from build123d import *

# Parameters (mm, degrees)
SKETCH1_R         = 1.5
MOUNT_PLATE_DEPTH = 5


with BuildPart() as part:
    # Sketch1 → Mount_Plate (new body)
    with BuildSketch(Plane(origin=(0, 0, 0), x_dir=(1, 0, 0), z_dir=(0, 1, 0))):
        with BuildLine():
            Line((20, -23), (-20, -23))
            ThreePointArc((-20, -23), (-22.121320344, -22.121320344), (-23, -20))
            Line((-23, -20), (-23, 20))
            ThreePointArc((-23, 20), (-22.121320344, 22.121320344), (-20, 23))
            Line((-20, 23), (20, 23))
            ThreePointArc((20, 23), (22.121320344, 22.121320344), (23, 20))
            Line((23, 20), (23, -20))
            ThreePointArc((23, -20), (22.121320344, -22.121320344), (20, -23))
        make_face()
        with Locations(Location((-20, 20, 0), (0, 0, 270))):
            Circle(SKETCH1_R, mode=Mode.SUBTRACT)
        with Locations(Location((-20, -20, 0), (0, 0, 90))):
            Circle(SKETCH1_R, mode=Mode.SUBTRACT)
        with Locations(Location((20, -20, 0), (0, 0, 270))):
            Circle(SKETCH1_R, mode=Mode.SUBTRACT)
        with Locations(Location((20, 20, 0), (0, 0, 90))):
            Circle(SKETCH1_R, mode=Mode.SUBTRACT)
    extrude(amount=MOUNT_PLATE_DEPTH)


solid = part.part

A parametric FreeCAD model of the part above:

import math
import FreeCAD as App
import Part
import Sketcher

V = App.Vector
Q = App.Units.Quantity

doc = App.newDocument("Part")
body = doc.addObject("PartDesign::Body", "Body")

sketch1 = doc.addObject("Sketcher::SketchObject", "Sketch")
body.addObject(sketch1)
sketch1.AttachmentSupport = (doc.XZ_Plane, [""])
sketch1.MapMode = "FlatFace"
sketch1.addGeometry(Part.LineSegment(V(-20, 23, 0), V(20, 23, 0)), False)
sketch1.addGeometry(Part.ArcOfCircle(Part.Circle(V(20, 20, 0), V(0, 0, 1), 3), math.radians(0), math.radians(90)), False)
sketch1.addGeometry(Part.LineSegment(V(23, 20, 0), V(23, -20, 0)), False)
sketch1.addGeometry(Part.ArcOfCircle(Part.Circle(V(20, -20, 0), V(0, 0, 1), 3), math.radians(-90), math.radians(0)), False)
sketch1.addGeometry(Part.LineSegment(V(20, -23, 0), V(-20, -23, 0)), False)
sketch1.addGeometry(Part.ArcOfCircle(Part.Circle(V(-20, -20, 0), V(0, 0, 1), 3), math.radians(180), math.radians(270)), False)
sketch1.addGeometry(Part.LineSegment(V(-23, -20, 0), V(-23, 20, 0)), False)
sketch1.addGeometry(Part.ArcOfCircle(Part.Circle(V(-20, 20, 0), V(0, 0, 1), 3), math.radians(90), math.radians(180)), False)
sketch1.addGeometry(Part.Circle(V(20, 20, 0), V(0, 0, 1), 1.5), False)
sketch1.addGeometry(Part.Circle(V(-20, 20, 0), V(0, 0, 1), 1.5), False)
sketch1.addGeometry(Part.Circle(V(20, -20, 0), V(0, 0, 1), 1.5), False)
sketch1.addGeometry(Part.Circle(V(-20, -20, 0), V(0, 0, 1), 1.5), False)
sketch1.addConstraint(Sketcher.Constraint("Tangent", 0, 2, 1, 2))
sketch1.addConstraint(Sketcher.Constraint("Tangent", 1, 1, 2, 1))
sketch1.addConstraint(Sketcher.Constraint("Tangent", 2, 2, 3, 2))
sketch1.addConstraint(Sketcher.Constraint("Tangent", 3, 1, 4, 1))
sketch1.addConstraint(Sketcher.Constraint("Tangent", 4, 2, 5, 2))
sketch1.addConstraint(Sketcher.Constraint("Tangent", 5, 1, 6, 1))
sketch1.addConstraint(Sketcher.Constraint("Tangent", 6, 2, 7, 2))
sketch1.addConstraint(Sketcher.Constraint("Tangent", 7, 1, 0, 1))
sketch1.addConstraint(Sketcher.Constraint("Horizontal", 0))
sketch1.addConstraint(Sketcher.Constraint("Vertical", 2))
sketch1.addConstraint(Sketcher.Constraint("Horizontal", 4))
sketch1.addConstraint(Sketcher.Constraint("Vertical", 6))
sketch1.addConstraint(Sketcher.Constraint("Coincident", 8, 3, 1, 3))
sketch1.addConstraint(Sketcher.Constraint("Coincident", 9, 3, 7, 3))
sketch1.addConstraint(Sketcher.Constraint("Coincident", 10, 3, 3, 3))
sketch1.addConstraint(Sketcher.Constraint("Coincident", 11, 3, 5, 3))
sketch1.addConstraint(Sketcher.Constraint("Equal", 1, 3))
sketch1.addConstraint(Sketcher.Constraint("Equal", 3, 5))
sketch1.addConstraint(Sketcher.Constraint("Equal", 5, 7))
sketch1.addConstraint(Sketcher.Constraint("Equal", 8, 9))
sketch1.addConstraint(Sketcher.Constraint("Equal", 9, 10))
sketch1.addConstraint(Sketcher.Constraint("Equal", 10, 11))
sketch1.addConstraint(Sketcher.Constraint("Symmetric", 1, 3, 5, 3, -1, 1))
sketch1.addConstraint(Sketcher.Constraint("Equal", 4, 2))
sketch1.addConstraint(Sketcher.Constraint("Diameter", 8, Q("3 mm")))
sketch1.addConstraint(Sketcher.Constraint("Radius", 1, Q("3 mm")))
sketch1.addConstraint(Sketcher.Constraint("DistanceX", 0, 1, 0, 2, Q("40 mm")))
pad1 = doc.addObject("PartDesign::Pad", "Pad")
body.addObject(pad1)
pad1.Profile = sketch1
pad1.Length = 5
pad1.Reversed = True

doc.recompute()
